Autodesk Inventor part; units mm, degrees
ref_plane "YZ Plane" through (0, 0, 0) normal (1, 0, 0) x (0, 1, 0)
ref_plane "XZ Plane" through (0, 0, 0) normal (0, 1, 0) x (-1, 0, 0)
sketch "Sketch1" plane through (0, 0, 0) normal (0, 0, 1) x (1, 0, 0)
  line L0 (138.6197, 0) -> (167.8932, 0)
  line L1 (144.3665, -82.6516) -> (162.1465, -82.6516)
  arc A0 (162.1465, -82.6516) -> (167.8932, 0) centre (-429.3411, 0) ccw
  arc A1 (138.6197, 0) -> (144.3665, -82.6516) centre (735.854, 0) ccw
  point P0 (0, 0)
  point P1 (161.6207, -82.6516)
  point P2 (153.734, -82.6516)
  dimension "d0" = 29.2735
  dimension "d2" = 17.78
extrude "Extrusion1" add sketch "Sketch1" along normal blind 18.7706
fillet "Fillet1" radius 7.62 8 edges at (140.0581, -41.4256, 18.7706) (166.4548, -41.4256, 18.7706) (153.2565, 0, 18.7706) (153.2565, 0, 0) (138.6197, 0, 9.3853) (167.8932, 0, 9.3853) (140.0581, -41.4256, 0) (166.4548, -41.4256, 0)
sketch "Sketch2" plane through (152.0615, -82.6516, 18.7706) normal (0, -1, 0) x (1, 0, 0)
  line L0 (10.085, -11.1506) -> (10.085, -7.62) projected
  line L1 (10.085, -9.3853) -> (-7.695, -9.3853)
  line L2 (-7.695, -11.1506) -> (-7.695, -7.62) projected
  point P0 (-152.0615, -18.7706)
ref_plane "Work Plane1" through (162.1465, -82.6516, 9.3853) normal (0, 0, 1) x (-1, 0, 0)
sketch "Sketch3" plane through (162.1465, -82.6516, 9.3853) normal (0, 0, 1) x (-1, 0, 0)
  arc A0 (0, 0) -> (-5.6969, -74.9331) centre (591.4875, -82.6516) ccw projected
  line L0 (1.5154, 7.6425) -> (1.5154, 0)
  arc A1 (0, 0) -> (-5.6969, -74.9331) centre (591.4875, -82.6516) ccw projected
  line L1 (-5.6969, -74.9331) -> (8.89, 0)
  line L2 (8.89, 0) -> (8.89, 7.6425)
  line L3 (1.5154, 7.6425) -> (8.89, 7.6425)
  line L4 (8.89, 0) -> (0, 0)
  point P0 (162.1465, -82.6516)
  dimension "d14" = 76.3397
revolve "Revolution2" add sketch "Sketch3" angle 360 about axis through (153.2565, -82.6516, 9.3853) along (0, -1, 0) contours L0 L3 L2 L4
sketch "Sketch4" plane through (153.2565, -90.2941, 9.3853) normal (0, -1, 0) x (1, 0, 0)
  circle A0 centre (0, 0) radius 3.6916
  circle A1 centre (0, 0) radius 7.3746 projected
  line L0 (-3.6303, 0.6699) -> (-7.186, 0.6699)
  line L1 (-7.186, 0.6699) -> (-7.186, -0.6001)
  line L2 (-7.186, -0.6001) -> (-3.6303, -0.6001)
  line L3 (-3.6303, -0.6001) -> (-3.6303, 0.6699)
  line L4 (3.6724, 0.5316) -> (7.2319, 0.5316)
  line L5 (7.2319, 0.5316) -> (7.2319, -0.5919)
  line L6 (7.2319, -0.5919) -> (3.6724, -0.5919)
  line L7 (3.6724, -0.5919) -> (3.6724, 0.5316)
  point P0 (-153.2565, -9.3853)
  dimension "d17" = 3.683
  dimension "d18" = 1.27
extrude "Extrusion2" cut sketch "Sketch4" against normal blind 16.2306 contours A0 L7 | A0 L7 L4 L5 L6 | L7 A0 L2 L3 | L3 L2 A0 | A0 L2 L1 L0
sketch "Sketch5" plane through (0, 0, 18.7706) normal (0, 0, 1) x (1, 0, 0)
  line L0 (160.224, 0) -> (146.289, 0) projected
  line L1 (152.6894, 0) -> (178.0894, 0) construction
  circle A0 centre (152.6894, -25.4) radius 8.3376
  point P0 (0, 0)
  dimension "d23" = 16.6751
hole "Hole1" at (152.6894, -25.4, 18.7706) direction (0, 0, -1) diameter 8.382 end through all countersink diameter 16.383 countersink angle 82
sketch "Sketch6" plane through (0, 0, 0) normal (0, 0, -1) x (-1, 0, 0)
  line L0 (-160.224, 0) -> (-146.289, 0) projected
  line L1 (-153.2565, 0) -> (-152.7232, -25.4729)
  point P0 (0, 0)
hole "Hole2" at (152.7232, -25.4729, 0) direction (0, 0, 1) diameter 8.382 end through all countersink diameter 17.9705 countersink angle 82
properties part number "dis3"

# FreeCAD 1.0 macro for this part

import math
import FreeCAD as App
import Part
import Sketcher

V = App.Vector
Q = App.Units.Quantity


def edges_at(feature, points):
    """Names of the edges that pass closest to the given points."""
    edges = feature.Shape.Edges
    near = lambda p: min(range(len(edges)), key=lambda i: edges[i].distToShape(Part.Vertex(*p))[0])
    return sorted({f"Edge{near(p) + 1}" for p in points})


def add_polygon(sketch, points):
    """Adds a closed chain of lines whose ends are joined by coincident constraints."""
    first, n = sketch.GeometryCount, len(points)
    for a, b in zip(points, points[1:] + points[:1]):
        sketch.addGeometry(Part.LineSegment(App.Vector(*a, 0), App.Vector(*b, 0)), False)
    for i in range(n):
        sketch.addConstraint(Sketcher.Constraint("Coincident", first + i, 2, first + (i + 1) % n, 1))

doc = App.newDocument("Part")
body = doc.addObject("PartDesign::Body", "Body")

# Sketch on XY plane
sketch1 = body.newObject("Sketcher::SketchObject", "Sketch")
sketch1.AttachmentSupport = (doc.getObject("XY_Plane"), [""])
sketch1.MapMode = "FlatFace"
sketch1.addGeometry([
    Part.LineSegment(V(168, 0, 0), V(139, 0, 0)),
    Part.ArcOfCircle(Part.Circle(V(736, 0, 0), V(0, 0, 1), 597), math.radians(180), math.radians(187.95)),
    Part.LineSegment(V(144, -83, 0), V(162, -83, 0)),
    Part.ArcOfCircle(Part.Circle(V(-429, 0, 0), V(0, 0, 1), 597), math.radians(-7.95), math.radians(0)),
], False)
sketch1.addConstraint([
    Sketcher.Constraint("Coincident", 0, 2, 1, 1),
    Sketcher.Constraint("Coincident", 1, 2, 2, 1),
    Sketcher.Constraint("Coincident", 2, 2, 3, 1),
    Sketcher.Constraint("Coincident", 3, 2, 0, 1),
    Sketcher.Constraint("Horizontal", 0),
    Sketcher.Constraint("Horizontal", 2),
    Sketcher.Constraint("Equal", 1, 3),
    Sketcher.Constraint("PointOnObject", 0, 2, -1),
    Sketcher.Constraint("DistanceX", 2, 1, 2, 2, Q("0.7 in")),
    Sketcher.Constraint("DistanceX", 0, 2, 0, 1, Q("1.1525 in")),
    Sketcher.Constraint("Radius", 1, 597.224),
    Sketcher.Constraint("DistanceY", 2, 2, -1, 1, Q("3.254 in")),
    Sketcher.Constraint("DistanceX", 3, 3, -1, 1, Q("16.9028 in")),
    Sketcher.Constraint("DistanceX", 2, 2, 1, 3, Q("22.5865 in")),
])
pad1 = body.newObject("PartDesign::Pad", "Pad")
pad1.Profile = sketch1
pad1.Length = Q("0.739 in")
doc.recompute()

fillet = body.newObject("PartDesign::Fillet", "Fillet")
fillet.Base = (pad1, edges_at(pad1, [
    (140.058, -41.426, 18.771),
    (166.455, -41.426, 18.771),
    (153.256, 0, 18.771),
    (153.256, 0, 0),
    (138.62, 0, 9.385),
    (167.893, 0, 9.385),
    (140.058, -41.426, 0),
    (166.455, -41.426, 0),
]))
fillet.Radius = Q("0.3 in")

# Sketch on XY plane
sketch2 = body.newObject("Sketcher::SketchObject", "Sketch001")
sketch2.AttachmentSupport = (doc.getObject("XY_Plane"), [""])
sketch2.MapMode = "FlatFace"
sketch2.AttachmentOffset = App.Placement(V(0, 0, 0.3695 * 25.4), App.Rotation())
add_polygon(sketch2, [(161, -90), (161, -83), (153, -83), (153, -90)])  # lines 0-3
sketch2.addGeometry(Part.LineSegment(V(153, -83, 0), V(153, -90, 0)), True)  # axis
sketch2.addConstraint([
    Sketcher.Constraint("Vertical", 0),
    Sketcher.Constraint("Horizontal", 1),
    Sketcher.Constraint("Vertical", 2),
    Sketcher.Constraint("Horizontal", 3),
    Sketcher.Constraint("Vertical", 4),
    Sketcher.Constraint("Coincident", 4, 1, 1, 2),
    Sketcher.Constraint("Horizontal", 3, 2, 4, 2),
    Sketcher.Constraint("DistanceY", 0, 2, -1, 1, Q("3.254 in")),
    Sketcher.Constraint("DistanceX", 1, 2, 1, 1, 7.3746),
    Sketcher.Constraint("DistanceY", 0, 1, 0, 2, 7.6425),
    Sketcher.Constraint("DistanceX", -1, 1, 0, 2, 160.631),
])
revolution = body.newObject("PartDesign::Revolution", "Revolution")
revolution.Profile = sketch2
revolution.ReferenceAxis = (sketch2, ["Axis0"])
revolution.Angle = 360

# Sketch on XZ plane
sketch3 = body.newObject("Sketcher::SketchObject", "Sketch002")
sketch3.AttachmentSupport = (doc.getObject("XZ_Plane"), [""])
sketch3.MapMode = "FlatFace"
sketch3.AttachmentOffset = App.Placement(V(0, 0, 90.2941), App.Rotation())
sketch3.addGeometry([
    Part.LineSegment(V(156.93, 9.01, 0), V(156.93, 8.79, 0)),  # 0
    Part.LineSegment(V(156.93, 8.79, 0), V(160.49, 8.79, 0)),  # 1
    Part.LineSegment(V(160.49, 8.79, 0), V(160.49, 9.92, 0)),  # 2
    Part.LineSegment(V(160.49, 9.92, 0), V(156.93, 9.92, 0)),  # 3
    Part.LineSegment(V(156.93, 9.92, 0), V(156.93, 9.76, 0)),  # 4
    Part.ArcOfCircle(Part.Circle(V(153.26, 9.39, 0), V(0, 0, 1), 3.69), math.radians(6), math.radians(170)),  # 5
    Part.LineSegment(V(149.63, 10.06, 0), V(146.07, 10.06, 0)),  # 6
    Part.LineSegment(V(146.07, 10.06, 0), V(146.07, 8.79, 0)),  # 7
    Part.LineSegment(V(146.07, 8.79, 0), V(149.61, 8.79, 0)),  # 8
    Part.ArcOfCircle(Part.Circle(V(153.26, 9.39, 0), V(0, 0, 1), 3.69), math.radians(-171), math.radians(-6)),  # 9
], False)
sketch3.addConstraint([
    Sketcher.Constraint("Coincident", 0, 2, 1, 1),
    Sketcher.Constraint("Coincident", 1, 2, 2, 1),
    Sketcher.Constraint("Coincident", 2, 2, 3, 1),
    Sketcher.Constraint("Coincident", 3, 2, 4, 1),
    Sketcher.Constraint("Coincident", 4, 2, 5, 1),
    Sketcher.Constraint("Coincident", 5, 2, 6, 1),
    Sketcher.Constraint("Coincident", 6, 2, 7, 1),
    Sketcher.Constraint("Coincident", 7, 2, 8, 1),
    Sketcher.Constraint("Coincident", 8, 2, 9, 1),
    Sketcher.Constraint("Coincident", 9, 2, 0, 1),
    Sketcher.Constraint("Vertical", 0),
    Sketcher.Constraint("Horizontal", 1),
    Sketcher.Constraint("Vertical", 2),
    Sketcher.Constraint("Horizontal", 3),
    Sketcher.Constraint("Vertical", 4),
    Sketcher.Constraint("Horizontal", 6),
    Sketcher.Constraint("Vertical", 7),
    Sketcher.Constraint("Horizontal", 8),
    Sketcher.Constraint("Coincident", 9, 3, 5, 3),
    Sketcher.Constraint("Equal", 5, 9),
    Sketcher.Constraint("Vertical", 0, 2, 3, 2),
    Sketcher.Constraint("DistanceY", 7, 2, 7, 1, Q("0.05 in")),
    Sketcher.Constraint("DistanceX", 6, 2, 6, 1, Q("0.14 in")),
    Sketcher.Constraint("Radius", 5, 3.6916),
    Sketcher.Constraint("DistanceX", 8, 1, 8, 2, Q("0.1395 in")),
    Sketcher.Constraint("DistanceY", 0, 2, 0, 1, Q("0.0085 in")),
    Sketcher.Constraint("DistanceX", 1, 1, 1, 2, 3.5595),
    Sketcher.Constraint("DistanceY", 2, 1, 2, 2, 1.1235),
    Sketcher.Constraint("DistanceY", 4, 2, 4, 1, 0.1556),
    Sketcher.Constraint("DistanceY", -1, 1, 5, 3, Q("0.3695 in")),
    Sketcher.Constraint("DistanceX", -1, 1, 0, 2, Q("6.1783 in")),
])
pocket1 = body.newObject("PartDesign::Pocket", "Pocket")
pocket1.Profile = sketch3
pocket1.Length = Q("0.639 in")

# Sketch on XY plane
sketch4 = body.newObject("Sketcher::SketchObject", "Sketch003")
sketch4.AttachmentSupport = (doc.getObject("XY_Plane"), [""])
sketch4.MapMode = "FlatFace"
sketch4.AttachmentOffset = App.Placement(V(0, 0, 0.739 * 25.4), App.Rotation())
sketch4.addGeometry(Part.Circle(V(152.7, -25.4, 0), V(0, 0, 1), 4.2), False)
sketch4.addConstraint([
    Sketcher.Constraint("Diameter", 0, Q("0.33 in")),
    Sketcher.Constraint("DistanceY", 0, 3, -1, 1, Q("1 in")),
    Sketcher.Constraint("DistanceX", -1, 1, 0, 3, Q("6.0114 in")),
])
doc.recompute()
hole = body.newObject("PartDesign::Hole", "Hole")
hole.Profile = sketch4
hole.ThreadType = "None"
hole.Diameter = Q("0.33 in")
hole.DepthType = "ThroughAll"
hole.HoleCutType = "Countersink"
hole.HoleCutDiameter = Q("0.645 in")
hole.HoleCutCountersinkAngle = 82

# Sketch on XY plane
sketch5 = body.newObject("Sketcher::SketchObject", "Sketch004")
sketch5.AttachmentSupport = (doc.getObject("XY_Plane"), [""])
sketch5.MapMode = "FlatFace"
sketch5.addGeometry(Part.Circle(V(152.7, -25.5, 0), V(0, 0, 1), 4.2), False)
sketch5.addConstraint([
    Sketcher.Constraint("Diameter", 0, Q("0.33 in")),
    Sketcher.Constraint("DistanceX", -1, 1, 0, 3, 152.7232),
    Sketcher.Constraint("DistanceY", 0, 3, -1, 1, 25.473),
])
doc.recompute()
hole2 = body.newObject("PartDesign::Hole", "Hole001")
hole2.Profile = sketch5
hole2.ThreadType = "None"
hole2.Diameter = Q("0.33 in")
hole2.DepthType = "ThroughAll"
hole2.HoleCutType = "Countersink"
hole2.HoleCutDiameter = Q("0.7075 in")
hole2.HoleCutCountersinkAngle = 82
hole2.Reversed = True

doc.recompute()
